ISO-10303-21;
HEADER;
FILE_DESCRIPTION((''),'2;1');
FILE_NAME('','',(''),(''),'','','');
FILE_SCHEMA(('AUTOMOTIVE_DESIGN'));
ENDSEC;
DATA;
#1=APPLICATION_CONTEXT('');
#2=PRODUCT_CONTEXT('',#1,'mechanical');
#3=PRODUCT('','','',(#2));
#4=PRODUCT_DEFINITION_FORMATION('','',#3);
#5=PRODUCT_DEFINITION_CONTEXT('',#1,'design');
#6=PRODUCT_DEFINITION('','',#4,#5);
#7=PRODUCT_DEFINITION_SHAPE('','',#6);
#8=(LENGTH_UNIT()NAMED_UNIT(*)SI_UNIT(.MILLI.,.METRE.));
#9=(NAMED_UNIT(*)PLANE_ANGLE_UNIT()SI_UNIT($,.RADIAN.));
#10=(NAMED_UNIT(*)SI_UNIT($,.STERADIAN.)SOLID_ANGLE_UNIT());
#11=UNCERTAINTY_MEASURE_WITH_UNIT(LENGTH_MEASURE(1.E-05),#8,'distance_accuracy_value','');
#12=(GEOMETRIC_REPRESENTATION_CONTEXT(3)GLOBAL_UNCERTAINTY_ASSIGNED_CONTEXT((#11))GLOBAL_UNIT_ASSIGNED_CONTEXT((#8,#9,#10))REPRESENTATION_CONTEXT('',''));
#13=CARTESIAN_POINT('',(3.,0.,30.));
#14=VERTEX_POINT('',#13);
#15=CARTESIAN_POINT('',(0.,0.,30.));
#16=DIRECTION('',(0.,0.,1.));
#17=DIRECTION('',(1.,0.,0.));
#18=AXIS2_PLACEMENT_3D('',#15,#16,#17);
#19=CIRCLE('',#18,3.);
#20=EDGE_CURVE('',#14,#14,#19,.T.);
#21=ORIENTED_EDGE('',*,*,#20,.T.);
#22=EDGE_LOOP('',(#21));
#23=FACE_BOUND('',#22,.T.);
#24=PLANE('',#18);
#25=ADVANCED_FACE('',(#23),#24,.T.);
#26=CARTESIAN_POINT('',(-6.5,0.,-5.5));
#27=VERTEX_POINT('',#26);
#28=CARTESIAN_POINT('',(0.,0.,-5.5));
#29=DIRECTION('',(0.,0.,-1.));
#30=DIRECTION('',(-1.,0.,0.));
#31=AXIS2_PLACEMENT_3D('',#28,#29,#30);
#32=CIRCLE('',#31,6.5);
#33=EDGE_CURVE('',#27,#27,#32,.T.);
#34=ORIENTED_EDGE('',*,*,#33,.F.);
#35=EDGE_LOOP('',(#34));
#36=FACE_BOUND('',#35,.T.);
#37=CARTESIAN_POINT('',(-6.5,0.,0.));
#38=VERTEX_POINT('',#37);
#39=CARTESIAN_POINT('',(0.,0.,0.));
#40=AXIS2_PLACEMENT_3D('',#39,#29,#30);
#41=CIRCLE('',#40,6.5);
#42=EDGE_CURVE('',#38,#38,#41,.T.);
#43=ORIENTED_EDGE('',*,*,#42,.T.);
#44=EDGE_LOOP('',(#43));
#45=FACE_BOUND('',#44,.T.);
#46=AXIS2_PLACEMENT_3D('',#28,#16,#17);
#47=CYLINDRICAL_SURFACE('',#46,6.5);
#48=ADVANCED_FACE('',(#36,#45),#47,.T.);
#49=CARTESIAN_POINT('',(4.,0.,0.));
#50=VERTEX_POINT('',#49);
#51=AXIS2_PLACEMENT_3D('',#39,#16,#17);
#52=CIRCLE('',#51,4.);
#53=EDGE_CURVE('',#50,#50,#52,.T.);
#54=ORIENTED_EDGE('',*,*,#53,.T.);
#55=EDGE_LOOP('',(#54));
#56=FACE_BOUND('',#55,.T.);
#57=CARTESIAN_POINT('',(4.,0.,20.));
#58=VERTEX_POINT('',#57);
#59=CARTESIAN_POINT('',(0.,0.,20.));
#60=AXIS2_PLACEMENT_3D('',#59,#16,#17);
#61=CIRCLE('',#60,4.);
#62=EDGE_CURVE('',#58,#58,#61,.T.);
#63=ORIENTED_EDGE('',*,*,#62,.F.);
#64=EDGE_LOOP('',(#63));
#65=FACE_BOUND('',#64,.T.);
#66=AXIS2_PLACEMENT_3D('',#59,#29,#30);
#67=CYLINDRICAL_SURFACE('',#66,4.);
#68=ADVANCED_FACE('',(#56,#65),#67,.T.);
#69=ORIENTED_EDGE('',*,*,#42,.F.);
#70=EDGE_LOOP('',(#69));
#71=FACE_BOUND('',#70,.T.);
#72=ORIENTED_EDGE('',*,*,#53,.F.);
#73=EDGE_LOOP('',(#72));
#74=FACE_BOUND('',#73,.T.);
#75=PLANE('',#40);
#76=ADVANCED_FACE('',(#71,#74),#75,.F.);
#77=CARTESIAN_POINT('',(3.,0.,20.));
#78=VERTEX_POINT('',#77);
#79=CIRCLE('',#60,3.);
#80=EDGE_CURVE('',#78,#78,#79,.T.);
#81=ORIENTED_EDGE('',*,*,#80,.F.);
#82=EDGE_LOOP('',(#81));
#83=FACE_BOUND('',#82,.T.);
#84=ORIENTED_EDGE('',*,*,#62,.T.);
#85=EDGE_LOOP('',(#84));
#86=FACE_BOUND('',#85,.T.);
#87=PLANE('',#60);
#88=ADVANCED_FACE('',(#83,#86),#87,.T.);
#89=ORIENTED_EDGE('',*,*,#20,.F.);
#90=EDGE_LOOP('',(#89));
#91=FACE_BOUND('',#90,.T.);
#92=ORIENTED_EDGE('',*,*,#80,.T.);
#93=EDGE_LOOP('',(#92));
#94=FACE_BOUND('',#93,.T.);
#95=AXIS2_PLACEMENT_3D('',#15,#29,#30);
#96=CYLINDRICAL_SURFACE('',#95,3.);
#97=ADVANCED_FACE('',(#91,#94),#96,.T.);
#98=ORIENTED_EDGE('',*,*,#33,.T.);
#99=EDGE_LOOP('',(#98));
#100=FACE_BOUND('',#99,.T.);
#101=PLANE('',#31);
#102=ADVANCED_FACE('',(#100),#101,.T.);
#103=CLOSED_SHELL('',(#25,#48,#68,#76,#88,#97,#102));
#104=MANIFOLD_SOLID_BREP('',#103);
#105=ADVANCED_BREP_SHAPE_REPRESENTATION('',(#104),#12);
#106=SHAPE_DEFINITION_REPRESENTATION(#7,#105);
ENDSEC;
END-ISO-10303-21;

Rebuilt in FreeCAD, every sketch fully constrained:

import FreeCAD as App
import Part
import Sketcher
from FreeCAD import Vector
Q = App.Units.Quantity

doc = App.newDocument("Part")
params = doc.addObject("Spreadsheet::Sheet", "Params")
for row, (alias, value) in enumerate([
    ("sketch1_diameter", "8 mm"),
    ("pad1_length", "20 mm"),
    ("sketch2_diameter", "13 mm"),
    ("pad2_length", "5.5 mm"),
    ("sketch3_diameter", "6 mm"),
    ("pad3_length", "10 mm"),
], start=1):
    params.set(f"A{row}", alias)
    params.set(f"B{row}", "=" + value)
    params.setAlias(f"B{row}", alias)

body = doc.addObject("PartDesign::Body", "Body")

# Sketch on XY plane
sketch1 = body.newObject("Sketcher::SketchObject", "Sketch")
sketch1.AttachmentSupport = (doc.getObject("XY_Plane"), [""])
sketch1.MapMode = "FlatFace"
sketch1.addGeometry(Part.Circle(Vector(0, 0, 0), Vector(0, 0, 1), 4), False)
sketch1.addConstraint(Sketcher.Constraint("Coincident", 0, 3, -1, 1))
sketch1.addConstraint(Sketcher.Constraint("Diameter", 0, Q("8 mm")))
sketch1.setExpression("Constraints[1]", "Params.sketch1_diameter")
pad1 = body.newObject("PartDesign::Pad", "Pad")
pad1.Profile = sketch1
pad1.setExpression("Length", "Params.pad1_length")

# Sketch on XY plane
sketch2 = body.newObject("Sketcher::SketchObject", "Sketch001")
sketch2.AttachmentSupport = (doc.getObject("XY_Plane"), [""])
sketch2.MapMode = "FlatFace"
sketch2.addGeometry(Part.Circle(Vector(0, 0, 0), Vector(0, 0, 1), 6.5), False)
sketch2.addConstraint(Sketcher.Constraint("Coincident", 0, 3, -1, 1))
sketch2.addConstraint(Sketcher.Constraint("Diameter", 0, Q("13 mm")))
sketch2.setExpression("Constraints[1]", "Params.sketch2_diameter")
pad2 = body.newObject("PartDesign::Pad", "Pad001")
pad2.Profile = sketch2
pad2.setExpression("Length", "Params.pad2_length")
pad2.Reversed = True

# Sketch on XY plane
sketch3 = body.newObject("Sketcher::SketchObject", "Sketch002")
sketch3.AttachmentSupport = (doc.getObject("XY_Plane"), [""])
sketch3.MapMode = "FlatFace"
sketch3.AttachmentOffset = App.Placement(Vector(0, 0, 20), App.Rotation())
sketch3.addGeometry(Part.Circle(Vector(0, 0, 0), Vector(0, 0, 1), 3), False)
sketch3.addConstraint(Sketcher.Constraint("Coincident", 0, 3, -1, 1))
sketch3.addConstraint(Sketcher.Constraint("Diameter", 0, Q("6 mm")))
sketch3.setExpression("Constraints[1]", "Params.sketch3_diameter")
pad3 = body.newObject("PartDesign::Pad", "Pad002")
pad3.Profile = sketch3
pad3.setExpression("Length", "Params.pad3_length")

doc.recompute()
